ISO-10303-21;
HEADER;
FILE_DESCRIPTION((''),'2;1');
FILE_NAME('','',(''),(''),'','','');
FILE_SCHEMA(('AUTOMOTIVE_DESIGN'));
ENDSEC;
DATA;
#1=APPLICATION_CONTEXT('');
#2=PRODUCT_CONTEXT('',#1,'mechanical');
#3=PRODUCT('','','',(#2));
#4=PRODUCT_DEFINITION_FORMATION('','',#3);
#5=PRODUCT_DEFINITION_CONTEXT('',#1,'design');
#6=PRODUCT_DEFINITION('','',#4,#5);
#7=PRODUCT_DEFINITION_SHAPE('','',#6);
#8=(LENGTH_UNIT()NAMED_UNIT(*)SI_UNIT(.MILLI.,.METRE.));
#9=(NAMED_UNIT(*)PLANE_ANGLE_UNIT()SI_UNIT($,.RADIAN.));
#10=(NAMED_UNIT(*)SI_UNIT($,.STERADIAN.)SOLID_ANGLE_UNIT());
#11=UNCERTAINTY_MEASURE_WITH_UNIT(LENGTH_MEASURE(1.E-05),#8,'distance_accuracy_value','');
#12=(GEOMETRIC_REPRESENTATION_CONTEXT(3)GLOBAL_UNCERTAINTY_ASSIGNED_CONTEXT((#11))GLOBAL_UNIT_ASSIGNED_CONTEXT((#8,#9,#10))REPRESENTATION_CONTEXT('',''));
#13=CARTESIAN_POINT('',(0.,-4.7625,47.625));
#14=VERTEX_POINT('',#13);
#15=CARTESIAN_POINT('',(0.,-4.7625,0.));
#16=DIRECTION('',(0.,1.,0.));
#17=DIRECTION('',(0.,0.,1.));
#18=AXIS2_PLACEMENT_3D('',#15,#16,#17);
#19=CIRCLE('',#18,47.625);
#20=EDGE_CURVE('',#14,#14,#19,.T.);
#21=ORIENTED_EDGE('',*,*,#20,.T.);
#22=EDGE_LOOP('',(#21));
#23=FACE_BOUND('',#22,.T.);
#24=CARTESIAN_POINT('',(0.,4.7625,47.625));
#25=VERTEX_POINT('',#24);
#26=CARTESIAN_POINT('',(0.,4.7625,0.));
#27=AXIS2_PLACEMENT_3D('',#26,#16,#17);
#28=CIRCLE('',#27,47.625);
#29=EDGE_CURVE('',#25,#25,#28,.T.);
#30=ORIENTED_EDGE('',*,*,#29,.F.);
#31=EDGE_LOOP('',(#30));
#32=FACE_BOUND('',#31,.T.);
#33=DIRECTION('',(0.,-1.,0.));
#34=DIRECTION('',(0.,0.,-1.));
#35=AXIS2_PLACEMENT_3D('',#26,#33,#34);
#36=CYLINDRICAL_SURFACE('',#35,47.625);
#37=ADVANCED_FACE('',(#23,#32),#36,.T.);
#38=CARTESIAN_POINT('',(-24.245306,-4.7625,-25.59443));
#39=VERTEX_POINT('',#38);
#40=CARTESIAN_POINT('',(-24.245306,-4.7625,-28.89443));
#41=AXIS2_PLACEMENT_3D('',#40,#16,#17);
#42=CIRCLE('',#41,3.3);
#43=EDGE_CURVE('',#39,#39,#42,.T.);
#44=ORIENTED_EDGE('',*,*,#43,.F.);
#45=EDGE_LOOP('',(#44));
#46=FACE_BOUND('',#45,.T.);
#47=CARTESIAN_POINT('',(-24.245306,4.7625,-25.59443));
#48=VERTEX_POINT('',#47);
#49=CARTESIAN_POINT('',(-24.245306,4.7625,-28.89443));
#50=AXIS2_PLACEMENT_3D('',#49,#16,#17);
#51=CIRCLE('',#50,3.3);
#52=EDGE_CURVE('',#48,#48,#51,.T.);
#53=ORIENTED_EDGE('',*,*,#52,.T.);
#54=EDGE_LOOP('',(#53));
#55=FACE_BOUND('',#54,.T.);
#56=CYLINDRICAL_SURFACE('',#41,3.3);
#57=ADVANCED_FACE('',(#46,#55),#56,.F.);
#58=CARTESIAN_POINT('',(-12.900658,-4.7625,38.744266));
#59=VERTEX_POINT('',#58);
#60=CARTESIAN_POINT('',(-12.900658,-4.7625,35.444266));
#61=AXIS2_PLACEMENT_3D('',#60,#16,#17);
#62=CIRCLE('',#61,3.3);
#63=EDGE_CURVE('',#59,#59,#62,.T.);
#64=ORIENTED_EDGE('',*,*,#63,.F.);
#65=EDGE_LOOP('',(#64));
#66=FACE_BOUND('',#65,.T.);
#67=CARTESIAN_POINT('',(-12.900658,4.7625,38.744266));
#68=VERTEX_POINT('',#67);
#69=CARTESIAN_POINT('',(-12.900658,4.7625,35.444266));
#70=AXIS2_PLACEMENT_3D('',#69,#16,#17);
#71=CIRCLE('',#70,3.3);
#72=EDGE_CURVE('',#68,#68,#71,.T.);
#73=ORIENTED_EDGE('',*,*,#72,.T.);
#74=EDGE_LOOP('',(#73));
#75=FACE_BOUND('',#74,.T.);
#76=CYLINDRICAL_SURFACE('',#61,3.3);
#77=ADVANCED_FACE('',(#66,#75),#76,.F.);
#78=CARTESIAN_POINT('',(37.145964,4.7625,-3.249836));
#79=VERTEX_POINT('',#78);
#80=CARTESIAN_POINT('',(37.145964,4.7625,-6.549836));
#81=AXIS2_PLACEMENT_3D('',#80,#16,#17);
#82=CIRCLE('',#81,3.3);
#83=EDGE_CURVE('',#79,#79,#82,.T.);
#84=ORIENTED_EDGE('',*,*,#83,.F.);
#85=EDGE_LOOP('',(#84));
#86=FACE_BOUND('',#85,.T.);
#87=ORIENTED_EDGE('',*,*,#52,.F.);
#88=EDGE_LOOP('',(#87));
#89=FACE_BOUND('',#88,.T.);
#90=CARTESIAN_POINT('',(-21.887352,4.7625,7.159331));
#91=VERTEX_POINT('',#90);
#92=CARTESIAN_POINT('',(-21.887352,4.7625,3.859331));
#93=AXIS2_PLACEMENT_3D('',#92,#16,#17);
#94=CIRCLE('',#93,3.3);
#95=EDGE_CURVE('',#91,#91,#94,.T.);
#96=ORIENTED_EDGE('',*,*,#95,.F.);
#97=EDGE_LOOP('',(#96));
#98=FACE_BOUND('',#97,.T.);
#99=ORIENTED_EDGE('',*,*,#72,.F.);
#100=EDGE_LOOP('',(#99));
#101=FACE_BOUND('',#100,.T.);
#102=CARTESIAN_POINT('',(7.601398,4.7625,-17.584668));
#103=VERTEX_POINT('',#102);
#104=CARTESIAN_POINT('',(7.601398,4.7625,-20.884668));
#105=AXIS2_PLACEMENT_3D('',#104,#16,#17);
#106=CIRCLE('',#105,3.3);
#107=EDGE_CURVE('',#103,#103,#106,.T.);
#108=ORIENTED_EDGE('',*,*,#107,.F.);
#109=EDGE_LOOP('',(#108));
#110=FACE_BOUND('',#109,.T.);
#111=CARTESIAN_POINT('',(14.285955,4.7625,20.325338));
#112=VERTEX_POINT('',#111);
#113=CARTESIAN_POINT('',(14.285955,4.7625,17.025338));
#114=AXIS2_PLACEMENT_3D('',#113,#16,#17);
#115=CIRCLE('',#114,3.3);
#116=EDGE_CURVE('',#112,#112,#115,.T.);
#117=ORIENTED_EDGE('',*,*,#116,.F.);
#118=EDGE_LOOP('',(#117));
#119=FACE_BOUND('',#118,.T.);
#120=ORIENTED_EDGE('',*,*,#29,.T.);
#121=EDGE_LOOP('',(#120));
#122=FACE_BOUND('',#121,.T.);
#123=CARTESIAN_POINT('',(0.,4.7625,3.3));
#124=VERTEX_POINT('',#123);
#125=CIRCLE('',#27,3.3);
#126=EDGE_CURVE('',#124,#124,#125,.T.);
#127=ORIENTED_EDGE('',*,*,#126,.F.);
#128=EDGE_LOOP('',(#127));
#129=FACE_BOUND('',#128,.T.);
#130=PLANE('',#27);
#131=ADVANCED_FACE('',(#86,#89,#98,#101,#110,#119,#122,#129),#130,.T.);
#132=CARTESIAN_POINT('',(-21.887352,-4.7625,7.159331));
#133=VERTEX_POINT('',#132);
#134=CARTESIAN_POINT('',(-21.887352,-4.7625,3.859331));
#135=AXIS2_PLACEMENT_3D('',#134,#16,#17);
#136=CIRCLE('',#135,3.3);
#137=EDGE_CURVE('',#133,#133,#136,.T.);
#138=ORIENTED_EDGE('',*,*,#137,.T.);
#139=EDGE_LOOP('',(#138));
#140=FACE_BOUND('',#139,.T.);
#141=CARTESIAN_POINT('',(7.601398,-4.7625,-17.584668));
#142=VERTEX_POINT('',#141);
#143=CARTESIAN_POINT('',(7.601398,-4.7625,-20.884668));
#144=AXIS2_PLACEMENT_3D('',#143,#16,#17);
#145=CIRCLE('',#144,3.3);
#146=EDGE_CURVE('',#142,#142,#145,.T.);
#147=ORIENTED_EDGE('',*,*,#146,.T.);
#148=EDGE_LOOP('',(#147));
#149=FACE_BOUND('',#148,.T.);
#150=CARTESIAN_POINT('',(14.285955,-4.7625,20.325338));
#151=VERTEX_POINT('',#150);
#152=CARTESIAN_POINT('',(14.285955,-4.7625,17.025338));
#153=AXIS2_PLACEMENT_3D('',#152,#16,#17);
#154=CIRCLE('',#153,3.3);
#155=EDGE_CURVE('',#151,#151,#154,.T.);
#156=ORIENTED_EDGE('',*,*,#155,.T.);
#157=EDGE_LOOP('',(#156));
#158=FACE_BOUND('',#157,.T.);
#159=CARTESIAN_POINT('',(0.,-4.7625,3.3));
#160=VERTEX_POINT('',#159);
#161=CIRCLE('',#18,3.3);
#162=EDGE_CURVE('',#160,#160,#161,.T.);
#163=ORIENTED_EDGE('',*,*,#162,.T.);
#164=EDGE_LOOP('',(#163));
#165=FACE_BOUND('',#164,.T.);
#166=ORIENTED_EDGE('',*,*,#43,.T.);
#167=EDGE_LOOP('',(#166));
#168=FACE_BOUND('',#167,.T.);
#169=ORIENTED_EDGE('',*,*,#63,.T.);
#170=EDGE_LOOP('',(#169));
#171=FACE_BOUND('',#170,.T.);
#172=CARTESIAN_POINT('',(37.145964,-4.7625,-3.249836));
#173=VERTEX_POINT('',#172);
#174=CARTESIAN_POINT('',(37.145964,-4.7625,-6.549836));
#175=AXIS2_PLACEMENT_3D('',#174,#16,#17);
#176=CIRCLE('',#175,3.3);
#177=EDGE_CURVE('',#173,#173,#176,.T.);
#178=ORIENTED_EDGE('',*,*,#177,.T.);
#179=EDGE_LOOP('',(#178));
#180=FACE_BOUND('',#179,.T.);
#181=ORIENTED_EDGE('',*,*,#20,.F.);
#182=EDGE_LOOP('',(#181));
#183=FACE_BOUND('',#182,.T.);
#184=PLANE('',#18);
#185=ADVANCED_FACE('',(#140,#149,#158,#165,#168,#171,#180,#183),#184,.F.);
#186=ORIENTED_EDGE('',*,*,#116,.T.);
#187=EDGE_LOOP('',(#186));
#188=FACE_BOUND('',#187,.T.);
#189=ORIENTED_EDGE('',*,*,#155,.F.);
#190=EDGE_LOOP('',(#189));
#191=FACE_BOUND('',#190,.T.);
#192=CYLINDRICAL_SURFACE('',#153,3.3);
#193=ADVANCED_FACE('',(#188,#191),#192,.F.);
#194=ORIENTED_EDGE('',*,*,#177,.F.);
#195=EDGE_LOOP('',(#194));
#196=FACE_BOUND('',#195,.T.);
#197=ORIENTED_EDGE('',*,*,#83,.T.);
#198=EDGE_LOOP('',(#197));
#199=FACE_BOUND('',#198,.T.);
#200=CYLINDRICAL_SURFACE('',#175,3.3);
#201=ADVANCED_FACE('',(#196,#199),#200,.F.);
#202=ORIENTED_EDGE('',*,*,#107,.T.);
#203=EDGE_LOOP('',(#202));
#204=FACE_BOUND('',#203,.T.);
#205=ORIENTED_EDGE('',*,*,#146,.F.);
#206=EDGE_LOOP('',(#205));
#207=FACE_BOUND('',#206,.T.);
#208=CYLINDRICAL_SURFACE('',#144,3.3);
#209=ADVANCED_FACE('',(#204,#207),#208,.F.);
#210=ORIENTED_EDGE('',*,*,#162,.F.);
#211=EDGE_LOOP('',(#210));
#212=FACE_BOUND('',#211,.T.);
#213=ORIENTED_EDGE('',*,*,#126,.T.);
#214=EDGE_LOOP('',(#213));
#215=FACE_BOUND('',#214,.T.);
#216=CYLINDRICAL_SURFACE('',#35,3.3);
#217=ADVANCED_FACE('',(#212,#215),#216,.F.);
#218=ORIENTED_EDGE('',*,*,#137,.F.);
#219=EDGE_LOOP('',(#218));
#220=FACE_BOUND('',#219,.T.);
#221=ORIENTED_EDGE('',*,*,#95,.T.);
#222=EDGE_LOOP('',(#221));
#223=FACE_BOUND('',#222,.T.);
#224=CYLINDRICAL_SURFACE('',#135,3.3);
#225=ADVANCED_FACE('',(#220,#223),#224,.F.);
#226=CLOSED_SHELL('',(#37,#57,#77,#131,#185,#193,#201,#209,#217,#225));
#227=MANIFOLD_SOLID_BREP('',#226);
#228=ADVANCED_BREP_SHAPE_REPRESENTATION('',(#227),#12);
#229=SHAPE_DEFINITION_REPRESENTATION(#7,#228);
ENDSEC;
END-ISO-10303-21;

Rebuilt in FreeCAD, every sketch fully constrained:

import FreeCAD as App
import Part
import Sketcher

V = App.Vector
Q = App.Units.Quantity

doc = App.newDocument("Part")
body = doc.addObject("PartDesign::Body", "Body")

# Sketch on XZ plane
sketch1 = doc.addObject("Sketcher::SketchObject", "Sketch")
body.addObject(sketch1)
sketch1.AttachmentSupport = (doc.XZ_Plane, [""])
sketch1.MapMode = "FlatFace"
sketch1.addGeometry([
    Part.Circle(V(0, 0, 0), V(0, 0, 1), 47.6),
    Part.Circle(V(0, 0, 0), V(0, 0, 1), 3.3),
], False)
sketch1.addConstraint([
    Sketcher.Constraint("Coincident", 0, 3, -1, 1),
    Sketcher.Constraint("Coincident", 1, 3, -1, 1),
    Sketcher.Constraint("Diameter", 0, Q("3.75 in")),
    Sketcher.Constraint("Diameter", 1, Q("6.6 mm")),
])
pad1 = doc.addObject("PartDesign::Pad", "Pad")
body.addObject(pad1)
pad1.Profile = sketch1
pad1.Length = Q("0.375 in")
pad1.Midplane = True

# Sketch on XZ plane
sketch2 = doc.addObject("Sketcher::SketchObject", "Sketch001")
body.addObject(sketch2)
sketch2.AttachmentSupport = (doc.XZ_Plane, [""])
sketch2.MapMode = "FlatFace"
sketch2.AttachmentOffset = App.Placement(V(0, 0, -0.1875 * 25.4), App.Rotation())
sketch2.addGeometry([
    Part.Circle(V(-12.9, 35.4, 0), V(0, 0, 1), 3.3),  # 0
    Part.Circle(V(-24.2, -28.9, 0), V(0, 0, 1), 3.3),  # 1
    Part.Circle(V(37.1, -6.5, 0), V(0, 0, 1), 3.3),  # 2
    Part.Circle(V(14.3, 17, 0), V(0, 0, 1), 3.3),  # 3
    Part.Circle(V(-21.9, 3.9, 0), V(0, 0, 1), 3.3),  # 4
    Part.Circle(V(7.6, -20.9, 0), V(0, 0, 1), 3.3),  # 5
], False)
sketch2.addConstraint([
    Sketcher.Constraint("Equal", 0, 1),
    Sketcher.Constraint("Equal", 1, 2),
    Sketcher.Constraint("Equal", 2, 3),
    Sketcher.Constraint("Equal", 3, 4),
    Sketcher.Constraint("Equal", 4, 5),
    Sketcher.Constraint("Diameter", 0, Q("6.6 mm")),
    Sketcher.Constraint("DistanceX", 0, 3, -1, 1, Q("0.5078999 in")),
    Sketcher.Constraint("DistanceY", 2, 3, 0, 3, Q("41.994102 mm")),
    Sketcher.Constraint("DistanceY", 5, 3, 4, 3, Q("24.743999 mm")),
    Sketcher.Constraint("DistanceY", 1, 3, -1, 1, Q("28.89443 mm")),
    Sketcher.Constraint("DistanceY", -1, 1, 4, 3, Q("3.859331 mm")),
    Sketcher.Constraint("DistanceX", 1, 3, 0, 3, Q("11.344648 mm")),
    Sketcher.Constraint("DistanceX", 0, 3, 2, 3, Q("50.046621 mm")),
    Sketcher.Constraint("DistanceY", 3, 3, 0, 3, Q("18.418928 mm")),
    Sketcher.Constraint("DistanceX", 3, 3, 2, 3, Q("22.860009 mm")),
    Sketcher.Constraint("DistanceY", 1, 3, 3, 3, Q("45.919768 mm")),
    Sketcher.Constraint("DistanceX", 4, 3, 5, 3, Q("29.48875 mm")),
    Sketcher.Constraint("DistanceX", 4, 3, -1, 1, Q("21.887352 mm")),
])
pocket1 = doc.addObject("PartDesign::Pocket", "Pocket")
body.addObject(pocket1)
pocket1.Profile = sketch2
pocket1.Type = "ThroughAll"
pocket1.Reversed = True

doc.recompute()
